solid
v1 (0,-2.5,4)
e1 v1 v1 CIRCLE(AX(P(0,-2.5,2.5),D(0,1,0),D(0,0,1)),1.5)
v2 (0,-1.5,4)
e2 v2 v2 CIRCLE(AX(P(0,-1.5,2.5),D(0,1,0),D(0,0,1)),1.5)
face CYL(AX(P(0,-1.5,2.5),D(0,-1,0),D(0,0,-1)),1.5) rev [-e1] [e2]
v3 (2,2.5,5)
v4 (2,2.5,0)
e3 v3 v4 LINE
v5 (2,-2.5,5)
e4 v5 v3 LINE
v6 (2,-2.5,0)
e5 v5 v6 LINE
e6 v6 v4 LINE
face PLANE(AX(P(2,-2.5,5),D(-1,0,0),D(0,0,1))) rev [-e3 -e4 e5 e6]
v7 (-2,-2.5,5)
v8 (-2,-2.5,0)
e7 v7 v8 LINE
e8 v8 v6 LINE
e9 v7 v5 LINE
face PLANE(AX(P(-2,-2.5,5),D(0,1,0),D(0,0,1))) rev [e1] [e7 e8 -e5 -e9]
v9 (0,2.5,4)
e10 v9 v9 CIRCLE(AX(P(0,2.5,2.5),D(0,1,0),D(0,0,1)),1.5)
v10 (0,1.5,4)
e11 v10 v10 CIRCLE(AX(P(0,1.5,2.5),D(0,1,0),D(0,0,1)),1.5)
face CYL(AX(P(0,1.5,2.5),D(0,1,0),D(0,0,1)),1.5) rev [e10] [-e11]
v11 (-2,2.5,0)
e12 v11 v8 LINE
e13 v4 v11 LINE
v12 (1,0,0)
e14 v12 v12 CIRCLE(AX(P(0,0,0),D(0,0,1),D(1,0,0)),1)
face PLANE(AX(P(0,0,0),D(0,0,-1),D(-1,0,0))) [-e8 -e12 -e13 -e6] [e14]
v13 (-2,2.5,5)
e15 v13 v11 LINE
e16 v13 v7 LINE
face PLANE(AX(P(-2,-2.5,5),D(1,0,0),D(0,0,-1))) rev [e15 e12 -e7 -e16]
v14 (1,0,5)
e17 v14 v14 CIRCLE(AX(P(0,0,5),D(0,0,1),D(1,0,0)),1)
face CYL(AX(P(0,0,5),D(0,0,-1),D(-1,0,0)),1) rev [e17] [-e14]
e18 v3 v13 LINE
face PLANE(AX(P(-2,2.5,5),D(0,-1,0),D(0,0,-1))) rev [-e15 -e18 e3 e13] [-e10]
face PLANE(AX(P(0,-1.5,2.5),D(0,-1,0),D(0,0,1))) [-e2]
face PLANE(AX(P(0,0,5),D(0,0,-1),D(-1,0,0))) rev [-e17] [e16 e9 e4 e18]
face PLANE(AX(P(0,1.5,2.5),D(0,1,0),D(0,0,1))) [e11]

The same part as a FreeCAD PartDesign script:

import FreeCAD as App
import Part
import Sketcher
from FreeCAD import Vector

doc = App.newDocument("Part")
body = doc.addObject("PartDesign::Body", "Body")

sketch1 = body.newObject("Sketcher::SketchObject", "Sketch")
sketch1.AttachmentSupport = (doc.getObject("XY_Plane"), [""])
sketch1.MapMode = "FlatFace"
sketch1.addGeometry([
    Part.LineSegment(Vector(-2, 2.5, 0), Vector(-2, -2.5, 0)),
    Part.LineSegment(Vector(-2, -2.5, 0), Vector(2, -2.5, 0)),
    Part.LineSegment(Vector(2, -2.5, 0), Vector(2, 2.5, 0)),
    Part.LineSegment(Vector(2, 2.5, 0), Vector(-2, 2.5, 0)),
    Part.Circle(Vector(0, 0, 0), Vector(0, 0, 1), 1),
], False)
sketch1.addConstraint([
    Sketcher.Constraint("Coincident", 0, 2, 1, 1),
    Sketcher.Constraint("Coincident", 1, 2, 2, 1),
    Sketcher.Constraint("Coincident", 2, 2, 3, 1),
    Sketcher.Constraint("Coincident", 3, 2, 0, 1),
    Sketcher.Constraint("Vertical", 0),
    Sketcher.Constraint("Horizontal", 1),
    Sketcher.Constraint("Vertical", 2),
    Sketcher.Constraint("Horizontal", 3),
    Sketcher.Constraint("Coincident", 4, 3, -1, 1),
    Sketcher.Constraint("Symmetric", 0, 2, 2, 2, -1, 1),
    Sketcher.Constraint("Diameter", 4, 2.0),
    Sketcher.Constraint("DistanceX", 1, 1, 1, 2, 4.0),
    Sketcher.Constraint("DistanceY", 0, 2, 0, 1, 5.0),
])
pad1 = body.newObject("PartDesign::Pad", "Pad")
pad1.Profile = sketch1
pad1.Length = 5

sketch2 = body.newObject("Sketcher::SketchObject", "Sketch001")
sketch2.AttachmentSupport = (doc.getObject("XZ_Plane"), [""])
sketch2.MapMode = "FlatFace"
sketch2.AttachmentOffset = App.Placement(Vector(0, 0, -2.5), App.Rotation())
sketch2.addGeometry(Part.Circle(Vector(0, 2.5, 0), Vector(0, 0, 1), 1.5), False)
sketch2.addConstraint([
    Sketcher.Constraint("PointOnObject", 0, 3, -2),
    Sketcher.Constraint("Diameter", 0, 3.0),
    Sketcher.Constraint("DistanceY", -1, 1, 0, 3, 2.5),
])
pocket1 = body.newObject("PartDesign::Pocket", "Pocket")
pocket1.Profile = sketch2
pocket1.Length = 1
pocket1.Reversed = True
doc.recompute()

mirrored = body.newObject("PartDesign::Mirrored", "Mirrored")
mirrored.Originals = [pocket1]
mirrored.MirrorPlane = (doc.getObject("XZ_Plane"), [""])
body.Tip = mirrored

doc.recompute()
